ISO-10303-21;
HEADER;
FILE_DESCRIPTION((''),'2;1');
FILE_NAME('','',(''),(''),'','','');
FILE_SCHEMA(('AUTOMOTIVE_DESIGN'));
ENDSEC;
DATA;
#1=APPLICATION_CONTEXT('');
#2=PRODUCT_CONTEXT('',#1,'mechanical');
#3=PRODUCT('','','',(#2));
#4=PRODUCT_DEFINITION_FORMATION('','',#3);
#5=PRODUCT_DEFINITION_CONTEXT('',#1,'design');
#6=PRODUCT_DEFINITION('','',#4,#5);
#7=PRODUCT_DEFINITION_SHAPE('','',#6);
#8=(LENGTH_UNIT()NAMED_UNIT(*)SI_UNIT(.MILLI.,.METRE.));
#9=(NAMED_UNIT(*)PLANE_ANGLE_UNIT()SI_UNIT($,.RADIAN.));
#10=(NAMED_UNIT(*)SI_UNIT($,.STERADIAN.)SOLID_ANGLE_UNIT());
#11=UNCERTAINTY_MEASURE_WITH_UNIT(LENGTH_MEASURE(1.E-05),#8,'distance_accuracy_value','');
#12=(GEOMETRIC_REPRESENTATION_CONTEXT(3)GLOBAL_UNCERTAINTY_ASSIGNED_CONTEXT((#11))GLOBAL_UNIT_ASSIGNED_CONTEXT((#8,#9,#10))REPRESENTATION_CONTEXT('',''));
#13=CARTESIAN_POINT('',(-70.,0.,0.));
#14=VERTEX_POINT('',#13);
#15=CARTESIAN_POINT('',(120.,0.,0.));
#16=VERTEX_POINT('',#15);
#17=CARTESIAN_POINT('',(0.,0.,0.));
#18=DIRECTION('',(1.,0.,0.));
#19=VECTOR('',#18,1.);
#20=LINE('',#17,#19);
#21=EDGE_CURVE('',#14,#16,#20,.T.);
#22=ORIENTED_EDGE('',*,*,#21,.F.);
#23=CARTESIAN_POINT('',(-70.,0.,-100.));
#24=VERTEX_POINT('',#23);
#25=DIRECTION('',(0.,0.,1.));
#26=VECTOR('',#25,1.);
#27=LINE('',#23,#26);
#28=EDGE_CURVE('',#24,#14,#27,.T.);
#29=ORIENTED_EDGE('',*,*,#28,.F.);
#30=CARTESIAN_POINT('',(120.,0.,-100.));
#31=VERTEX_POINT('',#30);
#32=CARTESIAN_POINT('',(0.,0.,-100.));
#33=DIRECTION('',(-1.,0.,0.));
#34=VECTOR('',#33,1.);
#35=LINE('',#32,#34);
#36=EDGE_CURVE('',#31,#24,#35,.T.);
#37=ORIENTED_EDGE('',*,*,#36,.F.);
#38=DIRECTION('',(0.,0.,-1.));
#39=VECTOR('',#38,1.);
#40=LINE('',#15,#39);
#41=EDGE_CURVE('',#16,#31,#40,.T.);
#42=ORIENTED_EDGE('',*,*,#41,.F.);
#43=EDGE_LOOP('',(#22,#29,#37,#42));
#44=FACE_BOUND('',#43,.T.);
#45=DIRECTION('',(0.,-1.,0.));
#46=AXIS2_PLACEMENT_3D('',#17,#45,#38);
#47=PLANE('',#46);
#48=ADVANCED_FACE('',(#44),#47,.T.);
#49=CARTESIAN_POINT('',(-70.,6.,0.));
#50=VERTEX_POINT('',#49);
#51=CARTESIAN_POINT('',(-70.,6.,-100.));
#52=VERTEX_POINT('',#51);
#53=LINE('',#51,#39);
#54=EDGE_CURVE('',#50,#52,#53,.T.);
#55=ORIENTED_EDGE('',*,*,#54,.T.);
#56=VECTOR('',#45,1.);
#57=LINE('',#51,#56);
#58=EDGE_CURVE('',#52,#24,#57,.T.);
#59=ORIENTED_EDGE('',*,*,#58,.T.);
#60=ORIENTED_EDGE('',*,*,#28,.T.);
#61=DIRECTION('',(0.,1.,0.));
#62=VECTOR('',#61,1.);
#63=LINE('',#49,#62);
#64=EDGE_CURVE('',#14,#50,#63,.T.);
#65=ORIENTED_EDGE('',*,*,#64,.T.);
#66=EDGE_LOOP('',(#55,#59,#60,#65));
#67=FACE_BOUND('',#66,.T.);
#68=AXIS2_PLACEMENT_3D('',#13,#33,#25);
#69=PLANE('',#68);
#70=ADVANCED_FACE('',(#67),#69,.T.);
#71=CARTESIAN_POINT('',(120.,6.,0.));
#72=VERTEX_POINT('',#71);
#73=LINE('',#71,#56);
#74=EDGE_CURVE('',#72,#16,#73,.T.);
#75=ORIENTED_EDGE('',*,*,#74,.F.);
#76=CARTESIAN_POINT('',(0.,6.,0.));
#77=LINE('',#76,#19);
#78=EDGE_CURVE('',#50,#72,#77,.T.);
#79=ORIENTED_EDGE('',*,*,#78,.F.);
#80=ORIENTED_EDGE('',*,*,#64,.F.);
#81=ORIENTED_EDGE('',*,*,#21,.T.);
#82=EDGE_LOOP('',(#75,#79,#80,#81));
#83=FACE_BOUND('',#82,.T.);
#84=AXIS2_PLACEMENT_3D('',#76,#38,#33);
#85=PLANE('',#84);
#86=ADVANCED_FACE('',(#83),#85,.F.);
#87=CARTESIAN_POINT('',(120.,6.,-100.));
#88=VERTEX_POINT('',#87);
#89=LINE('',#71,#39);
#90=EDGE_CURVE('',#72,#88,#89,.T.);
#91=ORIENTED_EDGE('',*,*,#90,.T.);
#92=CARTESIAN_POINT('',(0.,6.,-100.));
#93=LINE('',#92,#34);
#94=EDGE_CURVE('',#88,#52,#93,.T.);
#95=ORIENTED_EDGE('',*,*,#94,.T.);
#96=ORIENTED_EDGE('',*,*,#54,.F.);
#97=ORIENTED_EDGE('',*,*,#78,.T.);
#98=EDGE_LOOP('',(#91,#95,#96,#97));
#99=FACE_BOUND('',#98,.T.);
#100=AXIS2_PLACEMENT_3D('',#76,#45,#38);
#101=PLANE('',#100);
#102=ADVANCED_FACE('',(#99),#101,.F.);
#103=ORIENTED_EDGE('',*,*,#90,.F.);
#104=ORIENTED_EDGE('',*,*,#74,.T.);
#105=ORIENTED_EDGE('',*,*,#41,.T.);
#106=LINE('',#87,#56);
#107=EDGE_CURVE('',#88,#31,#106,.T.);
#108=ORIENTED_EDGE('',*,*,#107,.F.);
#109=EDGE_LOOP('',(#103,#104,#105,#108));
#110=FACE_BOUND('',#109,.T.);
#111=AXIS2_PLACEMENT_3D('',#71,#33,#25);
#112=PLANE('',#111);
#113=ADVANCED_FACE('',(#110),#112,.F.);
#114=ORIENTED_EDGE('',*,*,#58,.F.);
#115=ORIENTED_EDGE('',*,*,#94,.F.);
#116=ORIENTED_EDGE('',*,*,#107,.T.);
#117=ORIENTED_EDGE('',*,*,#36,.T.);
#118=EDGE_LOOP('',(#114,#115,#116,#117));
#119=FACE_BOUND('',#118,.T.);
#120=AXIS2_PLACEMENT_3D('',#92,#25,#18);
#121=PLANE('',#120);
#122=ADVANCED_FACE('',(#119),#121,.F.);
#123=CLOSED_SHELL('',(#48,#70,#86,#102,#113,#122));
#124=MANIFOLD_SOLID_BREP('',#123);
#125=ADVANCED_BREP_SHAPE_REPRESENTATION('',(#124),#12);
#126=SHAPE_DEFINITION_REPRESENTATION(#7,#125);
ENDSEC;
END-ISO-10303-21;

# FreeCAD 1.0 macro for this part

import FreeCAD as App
import Part
import Sketcher
from FreeCAD import Vector
Q = App.Units.Quantity

doc = App.newDocument("Part")
params = doc.addObject("Spreadsheet::Sheet", "Params")
for row, (alias, value) in enumerate([
    ("sketch1_width", "120 mm"),
    ("sketch1_height", "100 mm"),
    ("pad1_length", "6 mm"),
    ("sketch2_width", "6 mm"),
    ("sketch2_height", "100 mm"),
    ("pad2_length", "70 mm"),
], start=1):
    params.set(f"A{row}", alias)
    params.set(f"B{row}", "=" + value)
    params.setAlias(f"B{row}", alias)

body = doc.addObject("PartDesign::Body", "Body")

# Sketch on XZ plane
sketch1 = doc.addObject("Sketcher::SketchObject", "Sketch")
body.addObject(sketch1)
sketch1.AttachmentSupport = (doc.XZ_Plane, [""])
sketch1.MapMode = "FlatFace"
sketch1.addGeometry([
    Part.LineSegment(Vector(0, -100, 0), Vector(0, 0, 0)),
    Part.LineSegment(Vector(0, 0, 0), Vector(120, 0, 0)),
    Part.LineSegment(Vector(120, 0, 0), Vector(120, -100, 0)),
    Part.LineSegment(Vector(120, -100, 0), Vector(0, -100, 0)),
], False)
sketch1.addConstraint([
    Sketcher.Constraint("Coincident", 0, 2, 1, 1),
    Sketcher.Constraint("Coincident", 1, 2, 2, 1),
    Sketcher.Constraint("Coincident", 2, 2, 3, 1),
    Sketcher.Constraint("Coincident", 3, 2, 0, 1),
    Sketcher.Constraint("Vertical", 0),
    Sketcher.Constraint("Horizontal", 1),
    Sketcher.Constraint("Vertical", 2),
    Sketcher.Constraint("Horizontal", 3),
    Sketcher.Constraint("Coincident", 0, 2, -1, 1),
    Sketcher.Constraint("DistanceX", 1, 1, 1, 2, Q("120 mm")),
    Sketcher.Constraint("DistanceY", 0, 1, 0, 2, Q("100 mm")),
])
sketch1.setExpression("Constraints[9]", "Params.sketch1_width")
sketch1.setExpression("Constraints[10]", "Params.sketch1_height")
pad1 = doc.addObject("PartDesign::Pad", "Pad")
body.addObject(pad1)
pad1.Profile = sketch1
pad1.setExpression("Length", "Params.pad1_length")
pad1.Reversed = True

# Sketch on YZ plane
sketch2 = doc.addObject("Sketcher::SketchObject", "Sketch001")
body.addObject(sketch2)
sketch2.AttachmentSupport = (doc.YZ_Plane, [""])
sketch2.MapMode = "FlatFace"
sketch2.addGeometry([
    Part.LineSegment(Vector(6, -100, 0), Vector(0, -100, 0)),
    Part.LineSegment(Vector(0, -100, 0), Vector(0, 0, 0)),
    Part.LineSegment(Vector(0, 0, 0), Vector(6, 0, 0)),
    Part.LineSegment(Vector(6, 0, 0), Vector(6, -100, 0)),
], False)
sketch2.addConstraint([
    Sketcher.Constraint("Coincident", 0, 2, 1, 1),
    Sketcher.Constraint("Coincident", 1, 2, 2, 1),
    Sketcher.Constraint("Coincident", 2, 2, 3, 1),
    Sketcher.Constraint("Coincident", 3, 2, 0, 1),
    Sketcher.Constraint("Horizontal", 0),
    Sketcher.Constraint("Vertical", 1),
    Sketcher.Constraint("Horizontal", 2),
    Sketcher.Constraint("Vertical", 3),
    Sketcher.Constraint("Coincident", 1, 2, -1, 1),
    Sketcher.Constraint("DistanceX", 0, 2, 0, 1, Q("6 mm")),
    Sketcher.Constraint("DistanceY", 1, 1, 1, 2, Q("100 mm")),
])
sketch2.setExpression("Constraints[9]", "Params.sketch2_width")
sketch2.setExpression("Constraints[10]", "Params.sketch2_height")
pad2 = doc.addObject("PartDesign::Pad", "Pad001")
body.addObject(pad2)
pad2.Profile = sketch2
pad2.setExpression("Length", "Params.pad2_length")
pad2.Reversed = True

doc.recompute()
